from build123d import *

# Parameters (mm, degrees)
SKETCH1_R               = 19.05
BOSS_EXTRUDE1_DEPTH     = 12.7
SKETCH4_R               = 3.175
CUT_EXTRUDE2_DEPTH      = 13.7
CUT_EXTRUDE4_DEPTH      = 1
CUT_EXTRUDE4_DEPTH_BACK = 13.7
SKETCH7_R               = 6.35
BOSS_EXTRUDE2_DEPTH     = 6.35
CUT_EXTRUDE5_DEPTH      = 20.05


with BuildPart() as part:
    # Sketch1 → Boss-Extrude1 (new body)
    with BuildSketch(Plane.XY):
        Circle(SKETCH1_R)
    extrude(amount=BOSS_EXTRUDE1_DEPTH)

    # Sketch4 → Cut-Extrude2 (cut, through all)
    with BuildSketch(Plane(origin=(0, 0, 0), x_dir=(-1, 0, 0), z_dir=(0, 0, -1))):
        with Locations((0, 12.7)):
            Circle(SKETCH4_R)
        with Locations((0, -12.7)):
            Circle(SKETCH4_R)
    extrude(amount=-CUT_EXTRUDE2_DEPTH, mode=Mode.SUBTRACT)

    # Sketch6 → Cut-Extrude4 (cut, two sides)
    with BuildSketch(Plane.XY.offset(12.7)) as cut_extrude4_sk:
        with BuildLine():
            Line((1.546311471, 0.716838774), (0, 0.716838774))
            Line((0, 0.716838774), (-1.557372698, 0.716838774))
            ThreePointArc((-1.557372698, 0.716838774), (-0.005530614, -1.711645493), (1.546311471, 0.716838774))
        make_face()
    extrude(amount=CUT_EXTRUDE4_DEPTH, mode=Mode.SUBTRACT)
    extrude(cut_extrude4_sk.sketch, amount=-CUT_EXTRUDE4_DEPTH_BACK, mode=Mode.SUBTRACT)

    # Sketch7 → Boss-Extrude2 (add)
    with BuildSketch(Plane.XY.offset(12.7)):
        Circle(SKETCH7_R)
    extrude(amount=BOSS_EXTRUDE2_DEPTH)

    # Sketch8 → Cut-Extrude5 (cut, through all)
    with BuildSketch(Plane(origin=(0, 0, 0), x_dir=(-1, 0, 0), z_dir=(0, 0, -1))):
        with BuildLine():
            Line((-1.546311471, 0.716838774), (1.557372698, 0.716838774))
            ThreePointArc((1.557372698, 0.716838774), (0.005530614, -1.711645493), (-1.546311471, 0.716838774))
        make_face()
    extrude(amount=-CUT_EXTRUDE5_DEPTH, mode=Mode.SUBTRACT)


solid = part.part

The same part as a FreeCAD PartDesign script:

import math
import FreeCAD as App
import Part
import Sketcher
Q = App.Units.Quantity

doc = App.newDocument("Part")
params = doc.addObject("Spreadsheet::Sheet", "Params")
for row, (alias, value) in enumerate([
    ("sketch1_diameter", "1.5 in"),
    ("pad1_length", "0.5 in"),
    ("sketch2_diameter", "0.25 in"),
    ("sketch4_diameter", "0.5 in"),
    ("pad2_length", "0.25 in"),
], start=1):
    params.set(f"A{row}", alias)
    params.set(f"B{row}", "=" + value)
    params.setAlias(f"B{row}", alias)

body = doc.addObject("PartDesign::Body", "Body")

sketch1 = body.newObject("Sketcher::SketchObject", "Sketch")
sketch1.AttachmentSupport = (doc.getObject("XY_Plane"), [""])
sketch1.MapMode = "FlatFace"
sketch1.addGeometry(Part.Circle(App.Vector(0, 0, 0), App.Vector(0, 0, 1), 19), False)
sketch1.addConstraint([
    Sketcher.Constraint("Coincident", 0, 3, -1, 1),
    Sketcher.Constraint("Diameter", 0, Q("1.5 in")),
])
sketch1.setExpression("Constraints[1]", "Params.sketch1_diameter")
pad1 = body.newObject("PartDesign::Pad", "Pad")
pad1.Profile = sketch1
pad1.setExpression("Length", "Params.pad1_length")

sketch2 = body.newObject("Sketcher::SketchObject", "Sketch001")
sketch2.AttachmentSupport = (doc.getObject("XY_Plane"), [""])
sketch2.MapMode = "FlatFace"
sketch2.addGeometry([
    Part.Circle(App.Vector(0, 12.7, 0), App.Vector(0, 0, 1), 3.2),
    Part.Circle(App.Vector(0, -12.7, 0), App.Vector(0, 0, 1), 3.2),
], False)
sketch2.addConstraint([
    Sketcher.Constraint("Equal", 0, 1),
    Sketcher.Constraint("Symmetric", 0, 3, 1, 3, -1, 1),
    Sketcher.Constraint("PointOnObject", 0, 3, -2),
    Sketcher.Constraint("Diameter", 0, Q("0.25 in")),
    Sketcher.Constraint("DistanceY", 1, 3, 0, 3, Q("1 in")),
])
sketch2.setExpression("Constraints[3]", "Params.sketch2_diameter")
pocket1 = body.newObject("PartDesign::Pocket", "Pocket")
pocket1.Profile = sketch2
pocket1.Type = "ThroughAll"
pocket1.Reversed = True

sketch3 = body.newObject("Sketcher::SketchObject", "Sketch002")
sketch3.AttachmentSupport = (doc.getObject("XY_Plane"), [""])
sketch3.MapMode = "FlatFace"
sketch3.AttachmentOffset = App.Placement(App.Vector(0, 0, 0.5 * 25.4), App.Rotation())
sketch3.addGeometry([
    Part.LineSegment(App.Vector(1.5, 0.7, 0), App.Vector(-1.6, 0.7, 0)),
    Part.ArcOfCircle(Part.Circle(App.Vector(0, 0, 0), App.Vector(0, 0, 1), 1.7), math.radians(155), math.radians(385)),
], False)
sketch3.addConstraint([
    Sketcher.Constraint("Coincident", 0, 1, 1, 2),
    Sketcher.Constraint("Coincident", 1, 1, 0, 2),
    Sketcher.Constraint("Horizontal", 0),
    Sketcher.Constraint("Radius", 1, 1.710069),
    Sketcher.Constraint("DistanceX", 0, 2, 0, 1, 3.103684),
    Sketcher.Constraint("DistanceX", 1, 3, -1, 1, 0.005531),
    Sketcher.Constraint("DistanceY", -1, 1, 0, 1, 0.716839),
])
pocket2 = body.newObject("PartDesign::Pocket", "Pocket001")
pocket2.Profile = sketch3
pocket2.Type = "ThroughAll"
pocket2.Midplane = True

sketch4 = body.newObject("Sketcher::SketchObject", "Sketch003")
sketch4.AttachmentSupport = (doc.getObject("XY_Plane"), [""])
sketch4.MapMode = "FlatFace"
sketch4.AttachmentOffset = App.Placement(App.Vector(0, 0, 0.5 * 25.4), App.Rotation())
sketch4.addGeometry(Part.Circle(App.Vector(0, 0, 0), App.Vector(0, 0, 1), 6), False)
sketch4.addConstraint([
    Sketcher.Constraint("Coincident", 0, 3, -1, 1),
    Sketcher.Constraint("Diameter", 0, Q("0.5 in")),
])
sketch4.setExpression("Constraints[1]", "Params.sketch4_diameter")
pad2 = body.newObject("PartDesign::Pad", "Pad001")
pad2.Profile = sketch4
pad2.setExpression("Length", "Params.pad2_length")

sketch5 = body.newObject("Sketcher::SketchObject", "Sketch004")
sketch5.AttachmentSupport = (doc.getObject("XY_Plane"), [""])
sketch5.MapMode = "FlatFace"
sketch5.addGeometry([
    Part.LineSegment(App.Vector(-1.6, 0.7, 0), App.Vector(1.5, 0.7, 0)),
    Part.ArcOfCircle(Part.Circle(App.Vector(0, 0, 0), App.Vector(0, 0, 1), 1.7), math.radians(155), math.radians(385)),
], False)
sketch5.addConstraint([
    Sketcher.Constraint("Coincident", 0, 1, 1, 1),
    Sketcher.Constraint("Coincident", 1, 2, 0, 2),
    Sketcher.Constraint("Horizontal", 0),
    Sketcher.Constraint("Radius", 1, 1.710069),
    Sketcher.Constraint("DistanceX", 0, 1, 0, 2, 3.103684),
    Sketcher.Constraint("DistanceX", 1, 3, -1, 1, 0.005531),
    Sketcher.Constraint("DistanceY", -1, 1, 0, 1, 0.716839),
])
pocket3 = body.newObject("PartDesign::Pocket", "Pocket002")
pocket3.Profile = sketch5
pocket3.Type = "ThroughAll"
pocket3.Reversed = True

doc.recompute()
